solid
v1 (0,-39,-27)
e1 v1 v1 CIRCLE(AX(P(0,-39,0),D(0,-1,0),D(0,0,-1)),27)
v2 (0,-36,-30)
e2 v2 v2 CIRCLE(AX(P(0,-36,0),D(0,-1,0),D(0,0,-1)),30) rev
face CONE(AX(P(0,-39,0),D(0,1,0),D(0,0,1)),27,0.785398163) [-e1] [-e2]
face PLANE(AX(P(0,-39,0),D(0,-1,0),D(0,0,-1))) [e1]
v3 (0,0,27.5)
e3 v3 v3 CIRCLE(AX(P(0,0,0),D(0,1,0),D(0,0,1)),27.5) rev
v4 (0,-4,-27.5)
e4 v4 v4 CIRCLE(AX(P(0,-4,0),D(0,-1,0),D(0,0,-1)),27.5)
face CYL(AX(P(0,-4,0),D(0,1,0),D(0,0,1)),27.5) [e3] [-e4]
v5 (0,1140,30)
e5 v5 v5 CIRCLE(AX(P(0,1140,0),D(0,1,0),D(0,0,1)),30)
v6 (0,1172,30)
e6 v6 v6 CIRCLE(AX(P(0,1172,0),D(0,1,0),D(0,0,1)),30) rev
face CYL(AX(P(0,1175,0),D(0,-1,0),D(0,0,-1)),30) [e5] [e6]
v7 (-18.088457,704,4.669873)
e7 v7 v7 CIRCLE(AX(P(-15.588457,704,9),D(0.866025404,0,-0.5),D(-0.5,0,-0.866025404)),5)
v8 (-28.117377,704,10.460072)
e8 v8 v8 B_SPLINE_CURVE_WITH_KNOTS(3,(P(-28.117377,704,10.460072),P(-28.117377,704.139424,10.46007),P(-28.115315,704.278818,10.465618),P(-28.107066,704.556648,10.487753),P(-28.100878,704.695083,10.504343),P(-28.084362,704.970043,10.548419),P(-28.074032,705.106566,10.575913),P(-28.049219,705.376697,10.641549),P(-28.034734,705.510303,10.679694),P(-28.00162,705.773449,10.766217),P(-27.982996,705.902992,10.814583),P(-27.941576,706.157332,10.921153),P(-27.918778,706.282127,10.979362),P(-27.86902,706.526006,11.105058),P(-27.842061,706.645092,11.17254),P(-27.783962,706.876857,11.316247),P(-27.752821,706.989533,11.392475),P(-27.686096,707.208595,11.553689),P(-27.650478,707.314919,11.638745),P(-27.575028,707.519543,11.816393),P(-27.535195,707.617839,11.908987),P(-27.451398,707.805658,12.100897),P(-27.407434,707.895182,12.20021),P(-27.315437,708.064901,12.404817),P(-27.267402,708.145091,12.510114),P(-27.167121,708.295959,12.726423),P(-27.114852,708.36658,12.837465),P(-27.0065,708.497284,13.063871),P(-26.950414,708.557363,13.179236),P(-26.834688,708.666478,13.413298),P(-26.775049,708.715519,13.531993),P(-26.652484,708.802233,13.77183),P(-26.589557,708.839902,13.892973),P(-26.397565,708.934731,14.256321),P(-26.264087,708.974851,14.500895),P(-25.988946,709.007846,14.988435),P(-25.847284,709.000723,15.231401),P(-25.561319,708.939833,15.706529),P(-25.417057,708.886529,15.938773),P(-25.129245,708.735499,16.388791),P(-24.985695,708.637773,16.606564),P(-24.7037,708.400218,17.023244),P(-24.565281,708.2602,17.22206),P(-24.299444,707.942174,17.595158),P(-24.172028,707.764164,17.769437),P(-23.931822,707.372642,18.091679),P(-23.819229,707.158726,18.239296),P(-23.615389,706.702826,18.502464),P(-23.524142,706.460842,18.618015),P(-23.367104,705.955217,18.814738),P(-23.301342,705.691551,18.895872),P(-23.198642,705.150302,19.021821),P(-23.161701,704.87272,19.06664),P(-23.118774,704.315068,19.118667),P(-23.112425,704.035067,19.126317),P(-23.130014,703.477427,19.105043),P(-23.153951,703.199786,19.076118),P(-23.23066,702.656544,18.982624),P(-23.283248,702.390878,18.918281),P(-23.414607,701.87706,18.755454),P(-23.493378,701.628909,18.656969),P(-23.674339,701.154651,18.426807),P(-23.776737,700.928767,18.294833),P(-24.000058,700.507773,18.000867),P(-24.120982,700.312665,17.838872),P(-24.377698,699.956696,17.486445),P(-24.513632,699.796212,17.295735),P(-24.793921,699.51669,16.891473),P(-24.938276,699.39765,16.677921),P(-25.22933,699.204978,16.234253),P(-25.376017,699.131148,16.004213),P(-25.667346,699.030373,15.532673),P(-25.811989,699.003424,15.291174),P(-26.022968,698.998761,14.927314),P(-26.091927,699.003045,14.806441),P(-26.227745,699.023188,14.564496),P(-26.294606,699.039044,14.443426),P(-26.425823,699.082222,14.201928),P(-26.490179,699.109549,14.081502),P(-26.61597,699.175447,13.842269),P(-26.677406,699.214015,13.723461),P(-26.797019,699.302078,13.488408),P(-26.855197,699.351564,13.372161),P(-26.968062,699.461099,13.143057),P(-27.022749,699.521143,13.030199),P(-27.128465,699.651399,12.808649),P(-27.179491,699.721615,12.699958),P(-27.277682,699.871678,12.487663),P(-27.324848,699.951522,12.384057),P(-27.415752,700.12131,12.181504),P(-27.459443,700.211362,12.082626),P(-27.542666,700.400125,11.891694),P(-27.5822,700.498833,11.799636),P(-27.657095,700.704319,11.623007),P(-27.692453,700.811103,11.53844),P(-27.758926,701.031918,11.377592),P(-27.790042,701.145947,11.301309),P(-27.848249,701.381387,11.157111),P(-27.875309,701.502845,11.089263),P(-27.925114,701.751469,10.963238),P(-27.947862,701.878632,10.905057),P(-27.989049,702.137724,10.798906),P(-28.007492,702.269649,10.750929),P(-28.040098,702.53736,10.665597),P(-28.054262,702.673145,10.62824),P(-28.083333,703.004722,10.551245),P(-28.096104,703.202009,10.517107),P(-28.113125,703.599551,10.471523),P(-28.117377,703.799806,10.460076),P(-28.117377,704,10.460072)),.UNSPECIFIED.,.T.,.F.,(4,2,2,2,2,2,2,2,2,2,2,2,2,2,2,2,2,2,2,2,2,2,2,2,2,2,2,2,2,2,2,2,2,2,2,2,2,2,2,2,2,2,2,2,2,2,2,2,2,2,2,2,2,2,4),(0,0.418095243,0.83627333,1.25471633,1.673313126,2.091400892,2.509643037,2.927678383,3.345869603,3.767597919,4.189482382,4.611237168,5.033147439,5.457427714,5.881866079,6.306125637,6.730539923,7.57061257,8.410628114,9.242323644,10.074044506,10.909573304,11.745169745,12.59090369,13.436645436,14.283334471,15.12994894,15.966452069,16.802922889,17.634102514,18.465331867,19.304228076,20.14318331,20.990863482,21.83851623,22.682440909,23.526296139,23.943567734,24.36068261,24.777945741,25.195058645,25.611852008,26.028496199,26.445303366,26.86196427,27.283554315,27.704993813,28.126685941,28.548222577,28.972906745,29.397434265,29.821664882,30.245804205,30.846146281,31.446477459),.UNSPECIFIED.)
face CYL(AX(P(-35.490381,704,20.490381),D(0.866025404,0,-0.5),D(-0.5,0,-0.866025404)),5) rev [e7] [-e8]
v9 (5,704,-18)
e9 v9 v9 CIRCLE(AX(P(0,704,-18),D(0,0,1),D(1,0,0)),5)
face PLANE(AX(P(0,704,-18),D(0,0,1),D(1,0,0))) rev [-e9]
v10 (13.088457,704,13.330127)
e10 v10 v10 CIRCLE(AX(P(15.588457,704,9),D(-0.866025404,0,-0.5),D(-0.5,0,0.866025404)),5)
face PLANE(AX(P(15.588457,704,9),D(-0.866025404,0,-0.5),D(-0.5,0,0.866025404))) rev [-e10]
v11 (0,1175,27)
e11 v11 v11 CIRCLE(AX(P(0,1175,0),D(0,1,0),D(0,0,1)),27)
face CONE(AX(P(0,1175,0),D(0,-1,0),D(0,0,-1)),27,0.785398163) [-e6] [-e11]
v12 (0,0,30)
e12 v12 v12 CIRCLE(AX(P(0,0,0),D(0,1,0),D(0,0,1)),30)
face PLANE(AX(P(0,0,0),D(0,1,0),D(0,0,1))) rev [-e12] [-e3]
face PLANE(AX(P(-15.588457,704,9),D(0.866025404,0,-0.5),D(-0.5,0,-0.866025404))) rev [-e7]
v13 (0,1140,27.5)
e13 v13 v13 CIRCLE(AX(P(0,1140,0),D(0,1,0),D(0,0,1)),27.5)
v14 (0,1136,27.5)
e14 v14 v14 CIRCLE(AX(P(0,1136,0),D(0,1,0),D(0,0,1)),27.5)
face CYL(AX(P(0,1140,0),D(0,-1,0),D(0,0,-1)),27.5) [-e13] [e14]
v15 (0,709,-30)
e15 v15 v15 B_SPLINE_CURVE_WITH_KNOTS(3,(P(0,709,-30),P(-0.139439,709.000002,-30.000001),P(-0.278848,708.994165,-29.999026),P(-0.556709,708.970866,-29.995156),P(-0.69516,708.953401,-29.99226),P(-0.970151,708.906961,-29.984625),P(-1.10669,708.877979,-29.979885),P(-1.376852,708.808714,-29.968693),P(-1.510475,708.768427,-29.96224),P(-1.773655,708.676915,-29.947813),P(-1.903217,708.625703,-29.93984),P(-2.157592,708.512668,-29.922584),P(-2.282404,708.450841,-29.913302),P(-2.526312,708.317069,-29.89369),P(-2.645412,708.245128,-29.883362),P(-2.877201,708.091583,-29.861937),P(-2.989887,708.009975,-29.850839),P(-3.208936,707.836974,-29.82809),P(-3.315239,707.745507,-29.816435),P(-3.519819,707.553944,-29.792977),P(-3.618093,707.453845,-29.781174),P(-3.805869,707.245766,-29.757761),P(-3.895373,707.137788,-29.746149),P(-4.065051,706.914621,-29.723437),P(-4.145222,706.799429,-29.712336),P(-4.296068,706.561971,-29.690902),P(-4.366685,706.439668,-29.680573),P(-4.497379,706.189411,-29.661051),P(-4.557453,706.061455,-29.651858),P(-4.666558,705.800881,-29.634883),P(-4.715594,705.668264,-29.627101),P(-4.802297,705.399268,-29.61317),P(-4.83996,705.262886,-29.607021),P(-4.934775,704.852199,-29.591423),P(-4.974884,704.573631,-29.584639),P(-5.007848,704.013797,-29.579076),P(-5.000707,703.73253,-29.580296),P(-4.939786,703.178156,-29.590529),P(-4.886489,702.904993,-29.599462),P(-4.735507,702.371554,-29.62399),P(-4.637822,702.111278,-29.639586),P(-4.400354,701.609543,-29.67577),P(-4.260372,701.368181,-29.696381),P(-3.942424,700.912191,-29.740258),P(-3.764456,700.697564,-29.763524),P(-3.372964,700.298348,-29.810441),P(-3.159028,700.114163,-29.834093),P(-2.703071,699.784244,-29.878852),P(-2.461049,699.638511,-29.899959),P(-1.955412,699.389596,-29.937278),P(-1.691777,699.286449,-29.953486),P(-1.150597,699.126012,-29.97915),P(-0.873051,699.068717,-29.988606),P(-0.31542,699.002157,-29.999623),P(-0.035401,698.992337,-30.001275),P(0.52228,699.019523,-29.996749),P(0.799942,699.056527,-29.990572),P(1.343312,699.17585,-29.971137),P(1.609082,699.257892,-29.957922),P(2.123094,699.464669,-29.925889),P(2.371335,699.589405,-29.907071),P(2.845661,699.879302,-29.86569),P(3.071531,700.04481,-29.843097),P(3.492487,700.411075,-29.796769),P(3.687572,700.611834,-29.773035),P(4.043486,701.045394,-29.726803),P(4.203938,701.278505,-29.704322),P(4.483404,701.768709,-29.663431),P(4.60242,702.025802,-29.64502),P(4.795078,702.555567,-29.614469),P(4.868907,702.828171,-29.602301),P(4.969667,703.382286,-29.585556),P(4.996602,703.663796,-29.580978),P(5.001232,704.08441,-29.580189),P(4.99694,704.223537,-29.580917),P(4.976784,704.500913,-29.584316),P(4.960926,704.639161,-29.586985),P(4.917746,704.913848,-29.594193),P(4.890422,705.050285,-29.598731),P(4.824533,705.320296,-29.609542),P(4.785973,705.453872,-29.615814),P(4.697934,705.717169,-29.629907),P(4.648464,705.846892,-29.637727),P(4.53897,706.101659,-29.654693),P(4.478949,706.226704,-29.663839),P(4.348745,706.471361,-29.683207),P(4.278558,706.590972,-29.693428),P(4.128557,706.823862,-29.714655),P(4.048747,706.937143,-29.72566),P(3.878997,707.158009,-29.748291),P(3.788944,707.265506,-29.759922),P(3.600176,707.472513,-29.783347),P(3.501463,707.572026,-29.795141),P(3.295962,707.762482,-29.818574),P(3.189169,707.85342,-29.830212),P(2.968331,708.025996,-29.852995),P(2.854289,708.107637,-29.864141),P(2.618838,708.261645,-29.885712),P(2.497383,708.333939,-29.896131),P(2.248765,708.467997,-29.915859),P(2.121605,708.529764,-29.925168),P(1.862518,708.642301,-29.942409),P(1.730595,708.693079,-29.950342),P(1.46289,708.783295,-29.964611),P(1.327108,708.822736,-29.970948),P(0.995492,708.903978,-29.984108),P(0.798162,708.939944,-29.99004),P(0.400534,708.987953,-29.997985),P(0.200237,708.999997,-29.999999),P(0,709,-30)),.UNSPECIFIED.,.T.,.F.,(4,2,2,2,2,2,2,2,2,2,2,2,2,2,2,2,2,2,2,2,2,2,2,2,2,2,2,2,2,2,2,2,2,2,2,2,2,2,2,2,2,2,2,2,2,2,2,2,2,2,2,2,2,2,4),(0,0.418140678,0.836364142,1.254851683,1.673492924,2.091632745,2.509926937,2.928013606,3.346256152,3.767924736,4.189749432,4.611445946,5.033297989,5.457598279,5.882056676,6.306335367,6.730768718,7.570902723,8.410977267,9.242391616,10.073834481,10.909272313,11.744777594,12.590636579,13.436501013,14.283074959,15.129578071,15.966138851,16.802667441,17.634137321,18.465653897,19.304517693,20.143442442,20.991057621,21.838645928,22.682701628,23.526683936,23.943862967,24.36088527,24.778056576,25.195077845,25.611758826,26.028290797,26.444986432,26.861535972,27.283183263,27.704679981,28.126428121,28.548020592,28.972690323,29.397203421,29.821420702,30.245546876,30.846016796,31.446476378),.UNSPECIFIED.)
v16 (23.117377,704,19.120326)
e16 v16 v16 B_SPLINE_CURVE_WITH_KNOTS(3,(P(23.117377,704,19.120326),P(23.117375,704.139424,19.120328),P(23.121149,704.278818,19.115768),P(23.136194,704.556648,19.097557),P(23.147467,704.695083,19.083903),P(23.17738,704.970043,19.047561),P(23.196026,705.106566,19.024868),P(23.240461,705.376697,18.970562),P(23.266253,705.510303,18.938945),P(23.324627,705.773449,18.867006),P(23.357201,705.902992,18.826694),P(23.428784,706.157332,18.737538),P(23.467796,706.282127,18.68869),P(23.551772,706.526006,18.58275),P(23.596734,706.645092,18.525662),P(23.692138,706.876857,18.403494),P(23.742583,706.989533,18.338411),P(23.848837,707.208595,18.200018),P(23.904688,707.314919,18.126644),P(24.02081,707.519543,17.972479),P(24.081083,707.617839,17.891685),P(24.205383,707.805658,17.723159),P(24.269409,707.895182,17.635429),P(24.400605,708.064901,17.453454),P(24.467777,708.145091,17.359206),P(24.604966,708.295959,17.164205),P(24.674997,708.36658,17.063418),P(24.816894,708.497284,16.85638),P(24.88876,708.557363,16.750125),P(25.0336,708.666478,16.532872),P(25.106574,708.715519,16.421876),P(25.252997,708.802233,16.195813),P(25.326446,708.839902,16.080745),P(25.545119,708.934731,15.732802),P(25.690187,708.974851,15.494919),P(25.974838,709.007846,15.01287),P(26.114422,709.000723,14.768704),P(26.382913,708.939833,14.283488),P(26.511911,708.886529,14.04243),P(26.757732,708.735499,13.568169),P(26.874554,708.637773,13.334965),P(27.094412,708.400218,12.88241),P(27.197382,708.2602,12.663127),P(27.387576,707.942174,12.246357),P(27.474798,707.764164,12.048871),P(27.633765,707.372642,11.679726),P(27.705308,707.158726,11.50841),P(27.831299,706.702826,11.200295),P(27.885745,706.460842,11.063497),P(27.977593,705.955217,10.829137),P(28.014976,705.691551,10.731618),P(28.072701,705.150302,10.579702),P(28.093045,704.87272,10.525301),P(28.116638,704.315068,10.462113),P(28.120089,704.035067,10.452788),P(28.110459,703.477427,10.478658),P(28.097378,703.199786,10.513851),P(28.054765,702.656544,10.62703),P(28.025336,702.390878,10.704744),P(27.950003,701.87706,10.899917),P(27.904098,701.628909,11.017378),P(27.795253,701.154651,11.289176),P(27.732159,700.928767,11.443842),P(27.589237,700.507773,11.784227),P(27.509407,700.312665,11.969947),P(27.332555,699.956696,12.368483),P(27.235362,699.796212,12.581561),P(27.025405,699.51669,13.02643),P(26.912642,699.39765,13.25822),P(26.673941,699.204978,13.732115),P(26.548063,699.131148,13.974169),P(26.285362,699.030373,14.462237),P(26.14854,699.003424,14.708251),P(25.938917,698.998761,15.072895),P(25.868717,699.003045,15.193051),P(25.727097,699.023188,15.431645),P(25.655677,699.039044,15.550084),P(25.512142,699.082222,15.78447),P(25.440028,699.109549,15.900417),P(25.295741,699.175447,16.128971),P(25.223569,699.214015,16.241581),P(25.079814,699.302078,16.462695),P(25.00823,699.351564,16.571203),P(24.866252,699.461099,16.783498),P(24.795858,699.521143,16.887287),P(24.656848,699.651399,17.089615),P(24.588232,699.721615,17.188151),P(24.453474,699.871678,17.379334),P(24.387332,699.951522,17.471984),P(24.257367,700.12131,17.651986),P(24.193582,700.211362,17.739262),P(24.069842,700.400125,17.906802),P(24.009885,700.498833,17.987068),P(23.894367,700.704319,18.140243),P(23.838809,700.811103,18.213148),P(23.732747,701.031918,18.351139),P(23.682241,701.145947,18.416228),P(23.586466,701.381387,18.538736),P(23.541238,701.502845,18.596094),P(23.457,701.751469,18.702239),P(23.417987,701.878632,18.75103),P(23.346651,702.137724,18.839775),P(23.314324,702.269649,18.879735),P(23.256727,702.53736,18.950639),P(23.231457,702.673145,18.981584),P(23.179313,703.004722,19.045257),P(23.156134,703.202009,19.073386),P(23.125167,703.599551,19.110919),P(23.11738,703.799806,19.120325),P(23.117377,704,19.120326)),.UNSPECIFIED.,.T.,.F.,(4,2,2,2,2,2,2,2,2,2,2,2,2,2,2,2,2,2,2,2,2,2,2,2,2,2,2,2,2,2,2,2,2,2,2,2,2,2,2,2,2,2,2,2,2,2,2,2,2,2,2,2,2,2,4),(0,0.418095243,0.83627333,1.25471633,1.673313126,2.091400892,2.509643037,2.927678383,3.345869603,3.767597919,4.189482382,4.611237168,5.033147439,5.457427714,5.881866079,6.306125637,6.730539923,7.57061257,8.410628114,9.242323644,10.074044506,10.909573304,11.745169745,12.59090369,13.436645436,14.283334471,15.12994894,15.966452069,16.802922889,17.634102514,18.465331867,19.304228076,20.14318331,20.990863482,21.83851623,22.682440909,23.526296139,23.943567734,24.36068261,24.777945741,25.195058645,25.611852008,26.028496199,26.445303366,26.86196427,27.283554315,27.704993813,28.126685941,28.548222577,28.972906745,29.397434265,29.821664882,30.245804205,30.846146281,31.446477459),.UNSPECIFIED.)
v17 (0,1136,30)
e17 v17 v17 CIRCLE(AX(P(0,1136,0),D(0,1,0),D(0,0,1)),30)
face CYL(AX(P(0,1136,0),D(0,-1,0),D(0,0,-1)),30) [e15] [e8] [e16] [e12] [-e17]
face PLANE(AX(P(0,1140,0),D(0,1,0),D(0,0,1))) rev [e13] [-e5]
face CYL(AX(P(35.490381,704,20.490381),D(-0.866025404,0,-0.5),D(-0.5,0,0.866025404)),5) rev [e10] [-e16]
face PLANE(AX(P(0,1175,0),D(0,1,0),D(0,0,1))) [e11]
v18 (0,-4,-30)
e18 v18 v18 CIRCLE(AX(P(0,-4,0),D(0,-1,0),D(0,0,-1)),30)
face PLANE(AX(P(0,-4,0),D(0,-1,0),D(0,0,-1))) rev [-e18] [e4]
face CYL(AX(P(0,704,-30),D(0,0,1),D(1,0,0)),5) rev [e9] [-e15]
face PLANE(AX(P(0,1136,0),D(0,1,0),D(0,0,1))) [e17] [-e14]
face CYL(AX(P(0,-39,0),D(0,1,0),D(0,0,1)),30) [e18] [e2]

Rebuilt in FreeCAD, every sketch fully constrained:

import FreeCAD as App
import Part
import Sketcher

V = App.Vector
Q = App.Units.Quantity


def edges_at(feature, points):
    """Names of the edges that pass closest to the given points."""
    edges = feature.Shape.Edges
    near = lambda p: min(range(len(edges)), key=lambda i: edges[i].distToShape(Part.Vertex(*p))[0])
    return sorted({f"Edge{near(p) + 1}" for p in points})

doc = App.newDocument("Part")
body = doc.addObject("PartDesign::Body", "Body")

# Sketch on XZ plane
sketch1 = body.newObject("Sketcher::SketchObject", "Sketch")
sketch1.AttachmentSupport = (doc.getObject("XZ_Plane"), [""])
sketch1.MapMode = "FlatFace"
sketch1.addGeometry(Part.Circle(V(0, 0, 0), V(0, 0, 1), 30), False)
sketch1.addConstraint(Sketcher.Constraint("Coincident", 0, 3, -1, 1))
sketch1.addConstraint(Sketcher.Constraint("Diameter", 0, Q("60 mm")))
pad1 = body.newObject("PartDesign::Pad", "Pad")
pad1.Profile = sketch1
pad1.Length = 1136
pad1.Reversed = True

# Sketch on XZ plane
sketch2 = body.newObject("Sketcher::SketchObject", "Sketch001")
sketch2.AttachmentSupport = (doc.getObject("XZ_Plane"), [""])
sketch2.MapMode = "FlatFace"
sketch2.AttachmentOffset = App.Placement(V(0, 0, -1136), App.Rotation())
sketch2.addGeometry(Part.Circle(V(0, 0, 0), V(0, 0, 1), 28), False)
sketch2.addConstraint(Sketcher.Constraint("Coincident", 0, 3, -1, 1))
sketch2.addConstraint(Sketcher.Constraint("Diameter", 0, Q("55 mm")))
pad2 = body.newObject("PartDesign::Pad", "Pad001")
pad2.Profile = sketch2
pad2.Length = 4
pad2.Reversed = True

# Sketch on XZ plane
sketch3 = body.newObject("Sketcher::SketchObject", "Sketch002")
sketch3.AttachmentSupport = (doc.getObject("XZ_Plane"), [""])
sketch3.MapMode = "FlatFace"
sketch3.AttachmentOffset = App.Placement(V(0, 0, -1140), App.Rotation())
sketch3.addGeometry(Part.Circle(V(0, 0, 0), V(0, 0, 1), 30), False)
sketch3.addConstraint(Sketcher.Constraint("Coincident", 0, 3, -1, 1))
sketch3.addConstraint(Sketcher.Constraint("Diameter", 0, Q("60 mm")))
pad3 = body.newObject("PartDesign::Pad", "Pad002")
pad3.Profile = sketch3
pad3.Length = 35
pad3.Reversed = True
doc.recompute()

chamfer = body.newObject("PartDesign::Chamfer", "Chamfer")
chamfer.Base = (pad3, edges_at(pad3, [(0, 1175, -30)]))
chamfer.Size = 3

# Sketch on XZ plane
sketch4 = body.newObject("Sketcher::SketchObject", "Sketch003")
sketch4.AttachmentSupport = (doc.getObject("XZ_Plane"), [""])
sketch4.MapMode = "FlatFace"
sketch4.AttachmentOffset = App.Placement(V(0, 0, 4), App.Rotation())
sketch4.addGeometry(Part.Circle(V(0, 0, 0), V(0, 0, 1), 28), False)
sketch4.addConstraint(Sketcher.Constraint("Coincident", 0, 3, -1, 1))
sketch4.addConstraint(Sketcher.Constraint("Diameter", 0, Q("55 mm")))
pad4 = body.newObject("PartDesign::Pad", "Pad003")
pad4.Profile = sketch4
pad4.Length = 4
pad4.Reversed = True

# Sketch on XZ plane
sketch5 = body.newObject("Sketcher::SketchObject", "Sketch004")
sketch5.AttachmentSupport = (doc.getObject("XZ_Plane"), [""])
sketch5.MapMode = "FlatFace"
sketch5.AttachmentOffset = App.Placement(V(0, 0, 39), App.Rotation())
sketch5.addGeometry(Part.Circle(V(0, 0, 0), V(0, 0, 1), 30), False)
sketch5.addConstraint(Sketcher.Constraint("Coincident", 0, 3, -1, 1))
sketch5.addConstraint(Sketcher.Constraint("Diameter", 0, Q("60 mm")))
pad5 = body.newObject("PartDesign::Pad", "Pad004")
pad5.Profile = sketch5
pad5.Length = 35
pad5.Reversed = True
doc.recompute()

chamfer2 = body.newObject("PartDesign::Chamfer", "Chamfer001")
chamfer2.Base = (pad5, edges_at(pad5, [(0, -39, -30)]))
chamfer2.Size = 3

# Sketch on XY plane
sketch6 = body.newObject("Sketcher::SketchObject", "Sketch005")
sketch6.AttachmentSupport = (doc.getObject("XY_Plane"), [""])
sketch6.MapMode = "FlatFace"
sketch6.AttachmentOffset = App.Placement(V(0, 0, -18), App.Rotation())
sketch6.addGeometry(Part.Circle(V(0, 704, 0), V(0, 0, 1), 5), False)
sketch6.addConstraint(Sketcher.Constraint("PointOnObject", 0, 3, -2))
sketch6.addConstraint(Sketcher.Constraint("Diameter", 0, Q("10 mm")))
sketch6.addConstraint(Sketcher.Constraint("DistanceY", -1, 1, 0, 3, Q("704 mm")))
pocket1 = body.newObject("PartDesign::Pocket", "Pocket")
pocket1.Profile = sketch6
pocket1.Type = "ThroughAll"
doc.recompute()

polarpattern = body.newObject("PartDesign::PolarPattern", "PolarPattern")
polarpattern.Originals = [pocket1]
polarpattern.Axis = (doc.getObject("Y_Axis"), [""])
polarpattern.Angle = 360
polarpattern.Occurrences = 3
body.Tip = polarpattern

doc.recompute()
